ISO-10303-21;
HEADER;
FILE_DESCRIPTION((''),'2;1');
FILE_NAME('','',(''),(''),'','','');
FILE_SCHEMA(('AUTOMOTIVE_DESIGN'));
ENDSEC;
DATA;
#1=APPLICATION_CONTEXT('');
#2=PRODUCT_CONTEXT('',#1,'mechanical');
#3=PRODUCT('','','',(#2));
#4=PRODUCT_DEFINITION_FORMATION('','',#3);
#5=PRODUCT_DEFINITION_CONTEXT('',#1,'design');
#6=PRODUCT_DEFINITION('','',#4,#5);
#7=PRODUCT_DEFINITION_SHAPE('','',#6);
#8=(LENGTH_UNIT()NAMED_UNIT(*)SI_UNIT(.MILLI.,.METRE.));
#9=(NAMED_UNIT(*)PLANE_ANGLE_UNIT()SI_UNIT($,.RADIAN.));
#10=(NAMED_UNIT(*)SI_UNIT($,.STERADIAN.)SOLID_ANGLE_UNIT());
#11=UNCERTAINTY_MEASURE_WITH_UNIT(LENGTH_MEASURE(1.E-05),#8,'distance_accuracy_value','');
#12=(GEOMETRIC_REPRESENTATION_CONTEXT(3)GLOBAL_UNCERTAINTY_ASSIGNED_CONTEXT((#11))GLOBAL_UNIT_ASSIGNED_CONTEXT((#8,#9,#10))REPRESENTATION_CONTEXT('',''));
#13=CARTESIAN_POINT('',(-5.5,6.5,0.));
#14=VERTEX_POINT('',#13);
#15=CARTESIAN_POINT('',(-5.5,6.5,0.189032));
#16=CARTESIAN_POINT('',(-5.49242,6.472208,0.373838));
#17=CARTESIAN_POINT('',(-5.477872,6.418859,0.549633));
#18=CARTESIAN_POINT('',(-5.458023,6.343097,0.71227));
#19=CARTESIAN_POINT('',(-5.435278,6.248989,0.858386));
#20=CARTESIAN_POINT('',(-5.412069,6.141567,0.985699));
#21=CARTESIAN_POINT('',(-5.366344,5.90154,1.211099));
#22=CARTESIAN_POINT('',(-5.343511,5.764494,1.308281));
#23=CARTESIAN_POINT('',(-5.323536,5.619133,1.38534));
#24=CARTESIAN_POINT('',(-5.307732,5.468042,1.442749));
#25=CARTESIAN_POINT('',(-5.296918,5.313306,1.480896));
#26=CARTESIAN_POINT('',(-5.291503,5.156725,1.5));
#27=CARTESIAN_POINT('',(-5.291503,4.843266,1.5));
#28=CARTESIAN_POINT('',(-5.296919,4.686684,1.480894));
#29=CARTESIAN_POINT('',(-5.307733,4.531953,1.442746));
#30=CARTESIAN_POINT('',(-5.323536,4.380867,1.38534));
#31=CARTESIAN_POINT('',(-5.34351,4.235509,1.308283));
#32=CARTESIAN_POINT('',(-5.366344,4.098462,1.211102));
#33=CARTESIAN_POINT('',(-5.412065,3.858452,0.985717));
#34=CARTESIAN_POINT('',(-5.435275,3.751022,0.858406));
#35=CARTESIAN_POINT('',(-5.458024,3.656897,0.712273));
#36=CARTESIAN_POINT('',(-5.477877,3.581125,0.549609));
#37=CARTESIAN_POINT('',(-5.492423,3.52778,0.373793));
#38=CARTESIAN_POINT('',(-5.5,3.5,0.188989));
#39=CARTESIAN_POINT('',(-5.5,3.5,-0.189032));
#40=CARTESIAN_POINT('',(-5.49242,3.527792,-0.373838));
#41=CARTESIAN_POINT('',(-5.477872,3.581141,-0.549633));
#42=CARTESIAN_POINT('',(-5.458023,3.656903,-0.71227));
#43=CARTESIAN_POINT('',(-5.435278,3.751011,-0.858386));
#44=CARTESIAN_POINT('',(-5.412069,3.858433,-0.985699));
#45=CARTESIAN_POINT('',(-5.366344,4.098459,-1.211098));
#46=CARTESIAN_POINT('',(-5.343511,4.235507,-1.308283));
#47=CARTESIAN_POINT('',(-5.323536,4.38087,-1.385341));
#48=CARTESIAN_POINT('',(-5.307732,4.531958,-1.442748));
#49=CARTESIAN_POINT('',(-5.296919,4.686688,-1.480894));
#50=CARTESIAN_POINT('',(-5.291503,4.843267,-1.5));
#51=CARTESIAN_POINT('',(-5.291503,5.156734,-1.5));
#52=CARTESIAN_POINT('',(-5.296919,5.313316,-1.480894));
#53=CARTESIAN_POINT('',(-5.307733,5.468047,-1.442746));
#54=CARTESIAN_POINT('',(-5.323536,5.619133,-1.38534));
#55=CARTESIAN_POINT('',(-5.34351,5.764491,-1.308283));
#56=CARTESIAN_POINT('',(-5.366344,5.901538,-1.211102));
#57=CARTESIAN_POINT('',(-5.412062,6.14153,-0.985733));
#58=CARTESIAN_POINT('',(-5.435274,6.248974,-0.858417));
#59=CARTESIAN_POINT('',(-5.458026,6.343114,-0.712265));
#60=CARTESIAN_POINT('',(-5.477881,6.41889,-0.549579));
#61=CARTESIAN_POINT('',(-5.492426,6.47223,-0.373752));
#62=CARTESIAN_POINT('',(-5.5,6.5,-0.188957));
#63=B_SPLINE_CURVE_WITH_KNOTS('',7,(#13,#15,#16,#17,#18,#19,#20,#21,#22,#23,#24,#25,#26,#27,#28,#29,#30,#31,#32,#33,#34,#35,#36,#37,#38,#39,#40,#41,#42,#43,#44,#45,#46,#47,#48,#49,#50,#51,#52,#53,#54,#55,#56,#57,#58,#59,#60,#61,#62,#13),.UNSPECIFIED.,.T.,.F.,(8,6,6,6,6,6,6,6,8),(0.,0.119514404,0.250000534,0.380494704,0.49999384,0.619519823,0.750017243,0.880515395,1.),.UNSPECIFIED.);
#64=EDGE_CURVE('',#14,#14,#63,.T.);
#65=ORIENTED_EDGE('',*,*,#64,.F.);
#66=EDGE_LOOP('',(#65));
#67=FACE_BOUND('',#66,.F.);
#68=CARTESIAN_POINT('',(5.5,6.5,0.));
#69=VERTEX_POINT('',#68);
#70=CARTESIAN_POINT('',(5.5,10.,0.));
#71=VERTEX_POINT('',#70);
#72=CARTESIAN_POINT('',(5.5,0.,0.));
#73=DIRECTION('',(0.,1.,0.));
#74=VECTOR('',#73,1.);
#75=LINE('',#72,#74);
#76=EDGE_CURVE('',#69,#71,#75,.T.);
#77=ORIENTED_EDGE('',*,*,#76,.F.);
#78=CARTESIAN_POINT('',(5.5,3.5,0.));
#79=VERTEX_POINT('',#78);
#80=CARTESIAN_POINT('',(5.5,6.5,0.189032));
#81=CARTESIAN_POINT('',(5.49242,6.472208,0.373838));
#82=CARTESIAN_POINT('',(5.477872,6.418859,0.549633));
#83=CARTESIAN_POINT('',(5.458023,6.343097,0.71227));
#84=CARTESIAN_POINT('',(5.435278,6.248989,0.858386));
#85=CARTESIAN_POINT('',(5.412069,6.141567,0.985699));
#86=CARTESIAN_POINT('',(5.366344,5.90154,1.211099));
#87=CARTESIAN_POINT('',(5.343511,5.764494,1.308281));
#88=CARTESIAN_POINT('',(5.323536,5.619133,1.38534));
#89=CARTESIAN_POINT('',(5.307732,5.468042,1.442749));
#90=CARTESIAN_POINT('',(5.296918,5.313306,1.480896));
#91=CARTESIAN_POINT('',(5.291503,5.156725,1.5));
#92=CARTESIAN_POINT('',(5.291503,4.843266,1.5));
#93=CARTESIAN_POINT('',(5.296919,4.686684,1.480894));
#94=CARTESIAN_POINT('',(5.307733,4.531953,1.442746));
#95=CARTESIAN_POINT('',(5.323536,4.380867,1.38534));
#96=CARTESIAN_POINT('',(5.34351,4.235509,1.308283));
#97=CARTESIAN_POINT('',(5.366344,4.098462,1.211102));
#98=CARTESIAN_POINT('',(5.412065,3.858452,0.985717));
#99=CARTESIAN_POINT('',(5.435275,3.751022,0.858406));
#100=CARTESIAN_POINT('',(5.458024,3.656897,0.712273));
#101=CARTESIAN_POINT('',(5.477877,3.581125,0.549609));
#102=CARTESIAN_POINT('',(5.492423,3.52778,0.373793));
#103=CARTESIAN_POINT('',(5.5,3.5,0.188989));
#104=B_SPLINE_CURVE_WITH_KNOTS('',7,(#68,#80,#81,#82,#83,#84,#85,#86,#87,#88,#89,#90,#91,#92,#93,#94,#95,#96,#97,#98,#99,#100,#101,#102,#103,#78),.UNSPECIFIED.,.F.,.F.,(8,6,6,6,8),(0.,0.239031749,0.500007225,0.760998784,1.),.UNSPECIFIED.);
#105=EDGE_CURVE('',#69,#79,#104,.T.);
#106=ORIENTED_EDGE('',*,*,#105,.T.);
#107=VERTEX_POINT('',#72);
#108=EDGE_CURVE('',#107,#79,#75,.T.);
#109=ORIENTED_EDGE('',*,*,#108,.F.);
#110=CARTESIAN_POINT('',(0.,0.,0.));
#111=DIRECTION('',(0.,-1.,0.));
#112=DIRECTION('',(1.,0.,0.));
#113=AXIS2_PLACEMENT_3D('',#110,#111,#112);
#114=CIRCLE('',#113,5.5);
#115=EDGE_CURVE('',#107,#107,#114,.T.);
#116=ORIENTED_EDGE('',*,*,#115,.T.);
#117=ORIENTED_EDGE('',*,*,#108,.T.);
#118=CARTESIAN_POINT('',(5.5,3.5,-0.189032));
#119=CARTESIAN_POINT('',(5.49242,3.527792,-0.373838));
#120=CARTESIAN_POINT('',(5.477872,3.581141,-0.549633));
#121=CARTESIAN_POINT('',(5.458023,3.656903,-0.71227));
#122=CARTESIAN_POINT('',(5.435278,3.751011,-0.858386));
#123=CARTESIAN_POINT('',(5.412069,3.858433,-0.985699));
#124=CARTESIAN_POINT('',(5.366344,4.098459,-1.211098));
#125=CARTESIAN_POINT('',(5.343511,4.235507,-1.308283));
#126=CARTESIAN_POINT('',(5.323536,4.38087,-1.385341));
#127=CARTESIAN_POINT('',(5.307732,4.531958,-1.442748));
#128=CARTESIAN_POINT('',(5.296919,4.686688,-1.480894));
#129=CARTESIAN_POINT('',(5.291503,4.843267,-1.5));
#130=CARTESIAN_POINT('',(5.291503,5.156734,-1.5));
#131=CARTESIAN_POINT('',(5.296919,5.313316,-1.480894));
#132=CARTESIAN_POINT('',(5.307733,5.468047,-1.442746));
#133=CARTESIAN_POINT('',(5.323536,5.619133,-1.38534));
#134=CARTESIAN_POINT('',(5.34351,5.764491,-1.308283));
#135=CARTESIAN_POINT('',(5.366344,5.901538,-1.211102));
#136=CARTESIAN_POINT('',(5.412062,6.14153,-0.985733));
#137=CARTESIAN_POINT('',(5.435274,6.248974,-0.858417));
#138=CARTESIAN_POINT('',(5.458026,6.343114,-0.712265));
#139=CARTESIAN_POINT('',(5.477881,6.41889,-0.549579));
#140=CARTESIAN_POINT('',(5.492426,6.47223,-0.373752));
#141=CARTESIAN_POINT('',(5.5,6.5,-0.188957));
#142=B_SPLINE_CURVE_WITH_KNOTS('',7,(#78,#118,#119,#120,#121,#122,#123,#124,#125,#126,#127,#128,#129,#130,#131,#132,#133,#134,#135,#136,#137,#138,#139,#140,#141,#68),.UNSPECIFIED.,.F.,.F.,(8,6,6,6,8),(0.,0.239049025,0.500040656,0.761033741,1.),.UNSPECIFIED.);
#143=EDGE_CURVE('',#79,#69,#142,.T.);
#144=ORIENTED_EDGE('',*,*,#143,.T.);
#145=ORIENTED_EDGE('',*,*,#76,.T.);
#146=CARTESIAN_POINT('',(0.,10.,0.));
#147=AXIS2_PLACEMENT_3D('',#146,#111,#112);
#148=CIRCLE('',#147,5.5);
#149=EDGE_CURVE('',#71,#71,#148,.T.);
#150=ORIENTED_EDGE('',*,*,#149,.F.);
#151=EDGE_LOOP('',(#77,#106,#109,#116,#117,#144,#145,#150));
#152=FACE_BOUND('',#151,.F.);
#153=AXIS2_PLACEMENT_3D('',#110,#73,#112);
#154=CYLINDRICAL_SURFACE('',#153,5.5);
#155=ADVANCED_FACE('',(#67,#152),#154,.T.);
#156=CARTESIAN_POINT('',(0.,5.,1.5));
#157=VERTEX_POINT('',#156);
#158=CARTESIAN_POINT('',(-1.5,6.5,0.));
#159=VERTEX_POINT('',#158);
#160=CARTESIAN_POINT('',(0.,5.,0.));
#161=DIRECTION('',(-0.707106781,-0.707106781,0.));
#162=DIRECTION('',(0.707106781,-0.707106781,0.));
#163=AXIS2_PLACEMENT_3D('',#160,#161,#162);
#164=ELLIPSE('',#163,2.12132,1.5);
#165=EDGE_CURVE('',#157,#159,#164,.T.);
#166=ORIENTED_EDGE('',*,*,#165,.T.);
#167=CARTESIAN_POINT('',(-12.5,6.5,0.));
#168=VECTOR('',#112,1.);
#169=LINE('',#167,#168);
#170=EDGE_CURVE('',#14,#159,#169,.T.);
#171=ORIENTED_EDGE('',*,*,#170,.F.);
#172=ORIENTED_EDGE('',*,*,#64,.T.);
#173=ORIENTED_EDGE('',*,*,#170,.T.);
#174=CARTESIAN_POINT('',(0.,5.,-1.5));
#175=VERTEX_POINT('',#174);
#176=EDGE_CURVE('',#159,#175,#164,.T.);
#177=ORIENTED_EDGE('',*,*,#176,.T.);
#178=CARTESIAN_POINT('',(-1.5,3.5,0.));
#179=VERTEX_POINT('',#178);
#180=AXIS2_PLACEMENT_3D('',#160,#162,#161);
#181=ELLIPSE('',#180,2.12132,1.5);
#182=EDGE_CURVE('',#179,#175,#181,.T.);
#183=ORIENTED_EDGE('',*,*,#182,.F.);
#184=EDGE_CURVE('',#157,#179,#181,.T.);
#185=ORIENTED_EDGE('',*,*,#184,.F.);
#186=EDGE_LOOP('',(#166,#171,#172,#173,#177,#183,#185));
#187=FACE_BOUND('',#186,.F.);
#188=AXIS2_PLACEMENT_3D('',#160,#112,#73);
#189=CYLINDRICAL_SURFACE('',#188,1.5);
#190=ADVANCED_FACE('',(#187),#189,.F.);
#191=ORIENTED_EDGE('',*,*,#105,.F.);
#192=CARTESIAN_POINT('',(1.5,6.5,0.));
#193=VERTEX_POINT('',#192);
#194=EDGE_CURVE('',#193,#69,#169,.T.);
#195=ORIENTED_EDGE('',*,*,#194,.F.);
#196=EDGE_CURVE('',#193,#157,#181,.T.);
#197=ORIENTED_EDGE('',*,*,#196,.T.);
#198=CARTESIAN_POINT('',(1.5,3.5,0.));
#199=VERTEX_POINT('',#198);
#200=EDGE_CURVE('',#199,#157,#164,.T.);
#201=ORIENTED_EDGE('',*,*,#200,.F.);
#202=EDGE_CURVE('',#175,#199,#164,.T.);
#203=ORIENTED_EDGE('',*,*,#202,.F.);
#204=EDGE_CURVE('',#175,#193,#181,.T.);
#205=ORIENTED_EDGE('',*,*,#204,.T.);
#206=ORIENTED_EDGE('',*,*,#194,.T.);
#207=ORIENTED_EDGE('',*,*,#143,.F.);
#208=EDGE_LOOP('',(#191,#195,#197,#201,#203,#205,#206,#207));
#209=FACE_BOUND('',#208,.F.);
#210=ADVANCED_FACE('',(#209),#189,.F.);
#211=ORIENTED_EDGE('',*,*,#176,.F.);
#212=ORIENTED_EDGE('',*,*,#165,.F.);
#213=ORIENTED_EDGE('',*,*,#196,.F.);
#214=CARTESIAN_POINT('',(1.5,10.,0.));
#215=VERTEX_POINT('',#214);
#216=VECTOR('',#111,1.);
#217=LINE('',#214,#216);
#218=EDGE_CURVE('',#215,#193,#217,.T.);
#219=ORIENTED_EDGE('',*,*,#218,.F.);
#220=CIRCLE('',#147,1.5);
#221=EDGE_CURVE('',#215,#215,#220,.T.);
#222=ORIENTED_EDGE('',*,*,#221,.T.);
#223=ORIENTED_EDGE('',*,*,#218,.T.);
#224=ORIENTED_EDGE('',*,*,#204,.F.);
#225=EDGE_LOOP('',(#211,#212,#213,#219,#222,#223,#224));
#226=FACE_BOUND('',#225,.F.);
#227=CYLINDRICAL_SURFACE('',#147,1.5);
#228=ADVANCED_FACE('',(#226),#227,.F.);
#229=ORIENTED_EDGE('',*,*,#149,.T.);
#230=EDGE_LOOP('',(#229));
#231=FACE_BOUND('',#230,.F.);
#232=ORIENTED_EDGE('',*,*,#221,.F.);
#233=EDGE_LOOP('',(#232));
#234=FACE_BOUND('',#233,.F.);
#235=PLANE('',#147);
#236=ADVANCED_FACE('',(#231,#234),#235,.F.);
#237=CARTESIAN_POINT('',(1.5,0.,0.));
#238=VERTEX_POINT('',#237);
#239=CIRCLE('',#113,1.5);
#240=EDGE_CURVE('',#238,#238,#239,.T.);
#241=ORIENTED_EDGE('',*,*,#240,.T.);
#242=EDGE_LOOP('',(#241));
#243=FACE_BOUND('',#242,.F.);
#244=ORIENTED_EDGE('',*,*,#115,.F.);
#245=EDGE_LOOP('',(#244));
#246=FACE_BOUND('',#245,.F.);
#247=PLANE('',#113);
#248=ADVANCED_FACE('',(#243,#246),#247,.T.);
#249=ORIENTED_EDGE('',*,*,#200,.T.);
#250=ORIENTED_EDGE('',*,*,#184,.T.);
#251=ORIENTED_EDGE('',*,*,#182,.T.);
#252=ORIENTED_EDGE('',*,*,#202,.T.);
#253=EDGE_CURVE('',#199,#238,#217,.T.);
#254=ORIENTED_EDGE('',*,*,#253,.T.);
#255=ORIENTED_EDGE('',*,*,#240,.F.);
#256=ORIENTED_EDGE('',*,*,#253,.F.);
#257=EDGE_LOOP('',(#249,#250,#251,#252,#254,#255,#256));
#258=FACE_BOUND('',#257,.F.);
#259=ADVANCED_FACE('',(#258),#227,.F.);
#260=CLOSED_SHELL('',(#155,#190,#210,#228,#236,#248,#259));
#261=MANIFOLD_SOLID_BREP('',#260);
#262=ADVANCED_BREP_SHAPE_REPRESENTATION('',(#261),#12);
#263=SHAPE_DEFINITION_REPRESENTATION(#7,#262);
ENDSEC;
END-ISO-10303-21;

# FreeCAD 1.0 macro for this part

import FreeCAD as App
import Part
import Sketcher
from FreeCAD import Vector
Q = App.Units.Quantity


def add_polygon(sketch, points):
    """Adds a closed chain of lines whose ends are joined by coincident constraints."""
    first, n = sketch.GeometryCount, len(points)
    for a, b in zip(points, points[1:] + points[:1]):
        sketch.addGeometry(Part.LineSegment(App.Vector(*a, 0), App.Vector(*b, 0)), False)
    for i in range(n):
        sketch.addConstraint(Sketcher.Constraint("Coincident", first + i, 2, first + (i + 1) % n, 1))

doc = App.newDocument("Part")
body = doc.addObject("PartDesign::Body", "Body")

# Sketch on XY plane
sketch1 = doc.addObject("Sketcher::SketchObject", "Sketch")
body.addObject(sketch1)
sketch1.AttachmentSupport = (doc.XY_Plane, [""])
sketch1.MapMode = "FlatFace"
add_polygon(sketch1, [(1.5, 0), (5.5, 0), (5.5, 10), (1.5, 10)])  # lines 0-3
sketch1.addConstraint([
    Sketcher.Constraint("Horizontal", 0),
    Sketcher.Constraint("Vertical", 1),
    Sketcher.Constraint("Horizontal", 2),
    Sketcher.Constraint("Vertical", 3),
    Sketcher.Constraint("PointOnObject", 0, 2, -1),
    Sketcher.Constraint("DistanceX", 0, 1, 0, 2, Q("4 mm")),
    Sketcher.Constraint("DistanceY", 1, 1, 1, 2, Q("10 mm")),
    Sketcher.Constraint("DistanceX", -1, 1, 0, 2, Q("5.5 mm")),
])
revolution = doc.addObject("PartDesign::Revolution", "Revolution")
body.addObject(revolution)
revolution.Profile = sketch1
revolution.ReferenceAxis = (sketch1, ["V_Axis"])
revolution.Angle = 360

# Sketch on YZ plane
sketch2 = doc.addObject("Sketcher::SketchObject", "Sketch001")
body.addObject(sketch2)
sketch2.AttachmentSupport = (doc.YZ_Plane, [""])
sketch2.MapMode = "FlatFace"
sketch2.addGeometry(Part.Circle(Vector(5, 0, 0), Vector(0, 0, 1), 1.5), False)
sketch2.addConstraint([
    Sketcher.Constraint("PointOnObject", 0, 3, -1),
    Sketcher.Constraint("Diameter", 0, Q("3 mm")),
    Sketcher.Constraint("DistanceX", -1, 1, 0, 3, Q("5 mm")),
])
pocket1 = doc.addObject("PartDesign::Pocket", "Pocket")
body.addObject(pocket1)
pocket1.Profile = sketch2
pocket1.Length = 25
pocket1.Midplane = True

doc.recompute()
